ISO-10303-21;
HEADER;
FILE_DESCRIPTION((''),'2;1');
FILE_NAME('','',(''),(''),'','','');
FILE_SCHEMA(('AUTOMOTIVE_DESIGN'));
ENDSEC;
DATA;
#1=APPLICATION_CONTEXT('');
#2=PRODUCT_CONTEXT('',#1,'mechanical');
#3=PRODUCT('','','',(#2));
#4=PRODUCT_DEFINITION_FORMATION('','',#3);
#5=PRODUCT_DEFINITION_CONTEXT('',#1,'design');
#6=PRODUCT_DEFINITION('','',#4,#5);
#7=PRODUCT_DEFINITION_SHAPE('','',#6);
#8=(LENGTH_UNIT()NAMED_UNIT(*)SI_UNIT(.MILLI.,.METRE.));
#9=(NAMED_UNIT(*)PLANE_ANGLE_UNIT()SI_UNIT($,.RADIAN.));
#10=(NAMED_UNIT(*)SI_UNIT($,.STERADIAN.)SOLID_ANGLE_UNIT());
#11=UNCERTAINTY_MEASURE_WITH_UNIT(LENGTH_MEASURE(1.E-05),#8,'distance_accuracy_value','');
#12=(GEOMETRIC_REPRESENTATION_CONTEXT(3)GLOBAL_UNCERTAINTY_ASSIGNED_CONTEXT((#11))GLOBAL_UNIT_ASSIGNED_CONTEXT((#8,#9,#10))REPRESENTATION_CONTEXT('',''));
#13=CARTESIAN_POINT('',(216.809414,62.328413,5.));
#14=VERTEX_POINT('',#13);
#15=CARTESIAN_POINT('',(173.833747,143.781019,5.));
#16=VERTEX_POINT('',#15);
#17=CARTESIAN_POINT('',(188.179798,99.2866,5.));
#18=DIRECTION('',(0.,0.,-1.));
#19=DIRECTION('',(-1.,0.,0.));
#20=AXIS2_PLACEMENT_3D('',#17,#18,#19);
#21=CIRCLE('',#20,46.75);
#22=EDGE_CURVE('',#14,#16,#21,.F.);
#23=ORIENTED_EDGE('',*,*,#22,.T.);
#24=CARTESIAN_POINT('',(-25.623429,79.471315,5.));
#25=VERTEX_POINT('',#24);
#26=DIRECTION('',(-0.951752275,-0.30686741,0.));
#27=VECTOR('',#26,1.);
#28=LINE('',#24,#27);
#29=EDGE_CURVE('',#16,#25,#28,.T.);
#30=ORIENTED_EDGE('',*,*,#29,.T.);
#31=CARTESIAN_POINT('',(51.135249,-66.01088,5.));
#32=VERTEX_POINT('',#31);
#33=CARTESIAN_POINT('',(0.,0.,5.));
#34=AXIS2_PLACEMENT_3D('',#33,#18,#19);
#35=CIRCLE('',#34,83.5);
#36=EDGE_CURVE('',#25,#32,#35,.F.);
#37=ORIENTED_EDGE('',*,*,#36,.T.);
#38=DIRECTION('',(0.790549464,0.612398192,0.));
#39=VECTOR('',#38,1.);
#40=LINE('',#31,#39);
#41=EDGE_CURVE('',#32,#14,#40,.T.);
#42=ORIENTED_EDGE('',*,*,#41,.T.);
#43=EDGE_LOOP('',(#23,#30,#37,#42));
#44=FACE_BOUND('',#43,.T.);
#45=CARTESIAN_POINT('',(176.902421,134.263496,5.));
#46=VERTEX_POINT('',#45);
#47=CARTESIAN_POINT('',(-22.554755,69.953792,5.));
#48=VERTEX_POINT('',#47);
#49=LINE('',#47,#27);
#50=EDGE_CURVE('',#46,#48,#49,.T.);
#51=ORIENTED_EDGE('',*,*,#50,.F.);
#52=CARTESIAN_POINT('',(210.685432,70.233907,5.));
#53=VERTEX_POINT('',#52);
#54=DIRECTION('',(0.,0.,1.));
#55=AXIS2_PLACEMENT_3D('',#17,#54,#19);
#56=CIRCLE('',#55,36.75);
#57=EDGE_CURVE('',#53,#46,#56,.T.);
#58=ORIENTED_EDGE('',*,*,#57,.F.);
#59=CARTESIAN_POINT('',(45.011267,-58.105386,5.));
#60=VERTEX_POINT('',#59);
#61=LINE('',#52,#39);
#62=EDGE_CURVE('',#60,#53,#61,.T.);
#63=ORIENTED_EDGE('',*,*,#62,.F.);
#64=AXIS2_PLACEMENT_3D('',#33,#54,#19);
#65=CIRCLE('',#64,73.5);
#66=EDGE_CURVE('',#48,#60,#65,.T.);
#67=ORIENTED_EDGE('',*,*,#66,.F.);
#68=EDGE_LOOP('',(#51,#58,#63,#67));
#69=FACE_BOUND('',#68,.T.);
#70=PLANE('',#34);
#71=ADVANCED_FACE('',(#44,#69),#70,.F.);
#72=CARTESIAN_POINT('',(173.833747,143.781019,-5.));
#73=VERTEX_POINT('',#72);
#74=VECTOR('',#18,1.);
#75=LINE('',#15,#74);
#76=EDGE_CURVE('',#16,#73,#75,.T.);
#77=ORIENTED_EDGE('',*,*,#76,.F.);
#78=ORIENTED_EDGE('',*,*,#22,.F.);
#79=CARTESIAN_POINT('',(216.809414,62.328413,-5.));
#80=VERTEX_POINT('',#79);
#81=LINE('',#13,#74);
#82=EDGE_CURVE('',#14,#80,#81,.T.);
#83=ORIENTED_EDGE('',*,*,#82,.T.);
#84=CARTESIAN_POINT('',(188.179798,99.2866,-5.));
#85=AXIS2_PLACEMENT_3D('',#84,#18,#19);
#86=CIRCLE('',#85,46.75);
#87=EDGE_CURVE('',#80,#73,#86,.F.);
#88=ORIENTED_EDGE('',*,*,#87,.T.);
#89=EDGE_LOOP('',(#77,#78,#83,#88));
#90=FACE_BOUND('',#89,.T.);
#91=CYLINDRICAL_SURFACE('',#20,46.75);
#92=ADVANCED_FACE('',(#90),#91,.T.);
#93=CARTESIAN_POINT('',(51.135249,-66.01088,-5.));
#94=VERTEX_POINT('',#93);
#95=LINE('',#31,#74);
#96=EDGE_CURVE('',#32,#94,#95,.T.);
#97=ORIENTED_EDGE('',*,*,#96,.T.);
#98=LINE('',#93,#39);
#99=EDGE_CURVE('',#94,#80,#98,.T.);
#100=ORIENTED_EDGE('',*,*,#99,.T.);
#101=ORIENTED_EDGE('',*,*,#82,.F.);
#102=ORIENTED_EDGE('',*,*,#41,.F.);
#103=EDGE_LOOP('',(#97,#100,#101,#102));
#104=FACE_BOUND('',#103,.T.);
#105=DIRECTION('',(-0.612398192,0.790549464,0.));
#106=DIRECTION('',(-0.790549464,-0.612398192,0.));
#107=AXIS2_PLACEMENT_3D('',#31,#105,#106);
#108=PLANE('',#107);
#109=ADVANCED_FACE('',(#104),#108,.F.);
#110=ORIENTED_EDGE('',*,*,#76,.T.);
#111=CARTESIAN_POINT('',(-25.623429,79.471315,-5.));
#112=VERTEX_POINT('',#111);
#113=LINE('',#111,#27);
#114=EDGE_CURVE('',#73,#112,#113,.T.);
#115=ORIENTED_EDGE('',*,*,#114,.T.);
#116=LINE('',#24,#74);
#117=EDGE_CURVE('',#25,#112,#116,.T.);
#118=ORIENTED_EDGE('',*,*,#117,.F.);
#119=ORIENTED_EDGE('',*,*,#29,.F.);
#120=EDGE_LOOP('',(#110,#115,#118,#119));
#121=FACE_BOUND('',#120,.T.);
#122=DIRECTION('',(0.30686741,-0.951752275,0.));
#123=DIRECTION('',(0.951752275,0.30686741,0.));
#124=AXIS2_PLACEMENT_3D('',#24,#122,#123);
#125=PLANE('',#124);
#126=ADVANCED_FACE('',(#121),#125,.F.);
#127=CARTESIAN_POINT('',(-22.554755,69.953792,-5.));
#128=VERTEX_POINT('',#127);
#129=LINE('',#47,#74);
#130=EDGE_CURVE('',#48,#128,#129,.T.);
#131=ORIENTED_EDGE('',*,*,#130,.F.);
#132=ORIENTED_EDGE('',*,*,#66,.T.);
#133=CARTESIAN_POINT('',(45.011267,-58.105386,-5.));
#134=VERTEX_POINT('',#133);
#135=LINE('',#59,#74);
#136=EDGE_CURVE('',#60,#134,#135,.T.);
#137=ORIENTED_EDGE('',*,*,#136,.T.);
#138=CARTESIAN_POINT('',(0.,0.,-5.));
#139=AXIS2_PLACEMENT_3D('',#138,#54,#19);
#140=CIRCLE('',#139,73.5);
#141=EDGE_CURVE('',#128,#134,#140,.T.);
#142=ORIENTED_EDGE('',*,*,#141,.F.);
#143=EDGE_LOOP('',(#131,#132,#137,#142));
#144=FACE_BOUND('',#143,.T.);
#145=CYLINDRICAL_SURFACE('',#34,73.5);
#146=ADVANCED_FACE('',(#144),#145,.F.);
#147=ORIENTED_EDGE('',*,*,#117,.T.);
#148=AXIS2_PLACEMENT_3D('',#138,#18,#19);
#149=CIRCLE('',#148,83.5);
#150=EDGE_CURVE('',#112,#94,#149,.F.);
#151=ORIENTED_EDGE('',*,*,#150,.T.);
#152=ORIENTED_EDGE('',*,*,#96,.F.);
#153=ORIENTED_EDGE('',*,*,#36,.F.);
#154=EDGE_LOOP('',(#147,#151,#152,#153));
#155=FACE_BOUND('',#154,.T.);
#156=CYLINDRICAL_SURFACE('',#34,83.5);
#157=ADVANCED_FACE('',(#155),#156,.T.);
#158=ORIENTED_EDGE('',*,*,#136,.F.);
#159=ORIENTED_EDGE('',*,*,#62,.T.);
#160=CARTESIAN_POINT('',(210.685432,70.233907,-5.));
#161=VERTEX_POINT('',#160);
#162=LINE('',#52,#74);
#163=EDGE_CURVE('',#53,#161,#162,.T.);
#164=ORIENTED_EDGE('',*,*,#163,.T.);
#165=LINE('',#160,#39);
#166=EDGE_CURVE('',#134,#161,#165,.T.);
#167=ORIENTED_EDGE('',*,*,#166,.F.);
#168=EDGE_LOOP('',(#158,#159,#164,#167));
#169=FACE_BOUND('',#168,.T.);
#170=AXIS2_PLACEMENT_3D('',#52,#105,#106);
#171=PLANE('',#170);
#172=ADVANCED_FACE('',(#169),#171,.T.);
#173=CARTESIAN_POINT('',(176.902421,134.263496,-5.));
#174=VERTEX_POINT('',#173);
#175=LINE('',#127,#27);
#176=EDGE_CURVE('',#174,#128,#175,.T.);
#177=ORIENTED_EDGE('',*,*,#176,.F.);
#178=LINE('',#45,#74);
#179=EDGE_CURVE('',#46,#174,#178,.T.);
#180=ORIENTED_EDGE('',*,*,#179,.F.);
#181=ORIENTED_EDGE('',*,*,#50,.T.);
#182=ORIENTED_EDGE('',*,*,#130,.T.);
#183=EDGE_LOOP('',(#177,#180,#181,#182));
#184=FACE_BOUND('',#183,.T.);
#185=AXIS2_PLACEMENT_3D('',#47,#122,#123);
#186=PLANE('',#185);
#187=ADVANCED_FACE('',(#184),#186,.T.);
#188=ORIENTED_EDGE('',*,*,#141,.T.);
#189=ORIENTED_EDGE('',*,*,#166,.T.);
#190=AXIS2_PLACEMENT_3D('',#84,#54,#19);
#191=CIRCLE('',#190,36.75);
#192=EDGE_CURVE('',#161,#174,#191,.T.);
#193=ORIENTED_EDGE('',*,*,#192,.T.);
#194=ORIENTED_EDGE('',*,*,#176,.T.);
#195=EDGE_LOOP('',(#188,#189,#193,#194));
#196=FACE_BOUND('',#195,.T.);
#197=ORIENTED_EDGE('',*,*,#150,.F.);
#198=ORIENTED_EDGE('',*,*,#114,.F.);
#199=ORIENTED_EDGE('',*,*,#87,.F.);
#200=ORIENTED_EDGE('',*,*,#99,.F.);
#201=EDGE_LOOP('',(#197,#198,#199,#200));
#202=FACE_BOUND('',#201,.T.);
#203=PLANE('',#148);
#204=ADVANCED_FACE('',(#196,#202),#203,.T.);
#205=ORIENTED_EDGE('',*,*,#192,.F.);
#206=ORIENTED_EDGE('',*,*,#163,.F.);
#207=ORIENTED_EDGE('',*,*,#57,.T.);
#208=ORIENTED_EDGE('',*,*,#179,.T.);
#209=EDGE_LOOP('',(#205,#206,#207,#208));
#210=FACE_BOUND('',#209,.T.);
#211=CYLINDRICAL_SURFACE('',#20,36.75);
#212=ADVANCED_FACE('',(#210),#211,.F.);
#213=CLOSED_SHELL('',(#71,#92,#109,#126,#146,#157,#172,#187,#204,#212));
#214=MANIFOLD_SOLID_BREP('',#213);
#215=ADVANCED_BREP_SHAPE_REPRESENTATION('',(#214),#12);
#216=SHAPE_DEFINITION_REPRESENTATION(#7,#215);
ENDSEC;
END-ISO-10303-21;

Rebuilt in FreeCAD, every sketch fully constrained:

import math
import FreeCAD as App
import Part
import Sketcher

doc = App.newDocument("Part")
body = doc.addObject("PartDesign::Body", "Body")

# Sketch on XY plane
sketch1 = body.newObject("Sketcher::SketchObject", "Sketch")
sketch1.AttachmentSupport = (doc.getObject("XY_Plane"), [""])
sketch1.MapMode = "FlatFace"
sketch1.addGeometry([
    Part.LineSegment(App.Vector(51, -66, 0), App.Vector(217, 62, 0)),  # 0
    Part.ArcOfCircle(Part.Circle(App.Vector(188, 99, 0), App.Vector(0, 0, 1), 47), math.radians(-52), math.radians(108)),  # 1
    Part.LineSegment(App.Vector(174, 144, 0), App.Vector(-26, 79, 0)),  # 2
    Part.ArcOfCircle(Part.Circle(App.Vector(0, 0, 0), App.Vector(0, 0, 1), 84), math.radians(108), math.radians(308)),  # 3
    Part.LineSegment(App.Vector(211, 70, 0), App.Vector(45, -58, 0)),  # 4
    Part.ArcOfCircle(Part.Circle(App.Vector(0, 0, 0), App.Vector(0, 0, 1), 74), math.radians(108), math.radians(308)),  # 5
    Part.LineSegment(App.Vector(-23, 70, 0), App.Vector(177, 134, 0)),  # 6
    Part.ArcOfCircle(Part.Circle(App.Vector(188, 99, 0), App.Vector(0, 0, 1), 37), math.radians(-52), math.radians(108)),  # 7
], False)
sketch1.addConstraint([
    Sketcher.Constraint("Tangent", 0, 2, 1, 1),
    Sketcher.Constraint("Tangent", 1, 2, 2, 1),
    Sketcher.Constraint("Tangent", 2, 2, 3, 1),
    Sketcher.Constraint("Tangent", 3, 2, 0, 1),
    Sketcher.Constraint("Tangent", 4, 2, 5, 2),
    Sketcher.Constraint("Tangent", 5, 1, 6, 1),
    Sketcher.Constraint("Tangent", 6, 2, 7, 2),
    Sketcher.Constraint("Tangent", 7, 1, 4, 1),
    Sketcher.Constraint("Coincident", 3, 3, -1, 1),
    Sketcher.Constraint("Coincident", 5, 3, -1, 1),
    Sketcher.Constraint("Coincident", 7, 3, 1, 3),
    Sketcher.Constraint("Parallel", 0, 4),
    Sketcher.Constraint("Radius", 3, 83.5),
    Sketcher.Constraint("Radius", 5, 73.5),
    Sketcher.Constraint("Radius", 1, 46.75),
    Sketcher.Constraint("DistanceX", -1, 1, 1, 3, 188.179798),
    Sketcher.Constraint("DistanceY", -1, 1, 1, 3, 99.2866),
])
pad1 = body.newObject("PartDesign::Pad", "Pad")
pad1.Profile = sketch1
pad1.Length = 10
pad1.Midplane = True

doc.recompute()
